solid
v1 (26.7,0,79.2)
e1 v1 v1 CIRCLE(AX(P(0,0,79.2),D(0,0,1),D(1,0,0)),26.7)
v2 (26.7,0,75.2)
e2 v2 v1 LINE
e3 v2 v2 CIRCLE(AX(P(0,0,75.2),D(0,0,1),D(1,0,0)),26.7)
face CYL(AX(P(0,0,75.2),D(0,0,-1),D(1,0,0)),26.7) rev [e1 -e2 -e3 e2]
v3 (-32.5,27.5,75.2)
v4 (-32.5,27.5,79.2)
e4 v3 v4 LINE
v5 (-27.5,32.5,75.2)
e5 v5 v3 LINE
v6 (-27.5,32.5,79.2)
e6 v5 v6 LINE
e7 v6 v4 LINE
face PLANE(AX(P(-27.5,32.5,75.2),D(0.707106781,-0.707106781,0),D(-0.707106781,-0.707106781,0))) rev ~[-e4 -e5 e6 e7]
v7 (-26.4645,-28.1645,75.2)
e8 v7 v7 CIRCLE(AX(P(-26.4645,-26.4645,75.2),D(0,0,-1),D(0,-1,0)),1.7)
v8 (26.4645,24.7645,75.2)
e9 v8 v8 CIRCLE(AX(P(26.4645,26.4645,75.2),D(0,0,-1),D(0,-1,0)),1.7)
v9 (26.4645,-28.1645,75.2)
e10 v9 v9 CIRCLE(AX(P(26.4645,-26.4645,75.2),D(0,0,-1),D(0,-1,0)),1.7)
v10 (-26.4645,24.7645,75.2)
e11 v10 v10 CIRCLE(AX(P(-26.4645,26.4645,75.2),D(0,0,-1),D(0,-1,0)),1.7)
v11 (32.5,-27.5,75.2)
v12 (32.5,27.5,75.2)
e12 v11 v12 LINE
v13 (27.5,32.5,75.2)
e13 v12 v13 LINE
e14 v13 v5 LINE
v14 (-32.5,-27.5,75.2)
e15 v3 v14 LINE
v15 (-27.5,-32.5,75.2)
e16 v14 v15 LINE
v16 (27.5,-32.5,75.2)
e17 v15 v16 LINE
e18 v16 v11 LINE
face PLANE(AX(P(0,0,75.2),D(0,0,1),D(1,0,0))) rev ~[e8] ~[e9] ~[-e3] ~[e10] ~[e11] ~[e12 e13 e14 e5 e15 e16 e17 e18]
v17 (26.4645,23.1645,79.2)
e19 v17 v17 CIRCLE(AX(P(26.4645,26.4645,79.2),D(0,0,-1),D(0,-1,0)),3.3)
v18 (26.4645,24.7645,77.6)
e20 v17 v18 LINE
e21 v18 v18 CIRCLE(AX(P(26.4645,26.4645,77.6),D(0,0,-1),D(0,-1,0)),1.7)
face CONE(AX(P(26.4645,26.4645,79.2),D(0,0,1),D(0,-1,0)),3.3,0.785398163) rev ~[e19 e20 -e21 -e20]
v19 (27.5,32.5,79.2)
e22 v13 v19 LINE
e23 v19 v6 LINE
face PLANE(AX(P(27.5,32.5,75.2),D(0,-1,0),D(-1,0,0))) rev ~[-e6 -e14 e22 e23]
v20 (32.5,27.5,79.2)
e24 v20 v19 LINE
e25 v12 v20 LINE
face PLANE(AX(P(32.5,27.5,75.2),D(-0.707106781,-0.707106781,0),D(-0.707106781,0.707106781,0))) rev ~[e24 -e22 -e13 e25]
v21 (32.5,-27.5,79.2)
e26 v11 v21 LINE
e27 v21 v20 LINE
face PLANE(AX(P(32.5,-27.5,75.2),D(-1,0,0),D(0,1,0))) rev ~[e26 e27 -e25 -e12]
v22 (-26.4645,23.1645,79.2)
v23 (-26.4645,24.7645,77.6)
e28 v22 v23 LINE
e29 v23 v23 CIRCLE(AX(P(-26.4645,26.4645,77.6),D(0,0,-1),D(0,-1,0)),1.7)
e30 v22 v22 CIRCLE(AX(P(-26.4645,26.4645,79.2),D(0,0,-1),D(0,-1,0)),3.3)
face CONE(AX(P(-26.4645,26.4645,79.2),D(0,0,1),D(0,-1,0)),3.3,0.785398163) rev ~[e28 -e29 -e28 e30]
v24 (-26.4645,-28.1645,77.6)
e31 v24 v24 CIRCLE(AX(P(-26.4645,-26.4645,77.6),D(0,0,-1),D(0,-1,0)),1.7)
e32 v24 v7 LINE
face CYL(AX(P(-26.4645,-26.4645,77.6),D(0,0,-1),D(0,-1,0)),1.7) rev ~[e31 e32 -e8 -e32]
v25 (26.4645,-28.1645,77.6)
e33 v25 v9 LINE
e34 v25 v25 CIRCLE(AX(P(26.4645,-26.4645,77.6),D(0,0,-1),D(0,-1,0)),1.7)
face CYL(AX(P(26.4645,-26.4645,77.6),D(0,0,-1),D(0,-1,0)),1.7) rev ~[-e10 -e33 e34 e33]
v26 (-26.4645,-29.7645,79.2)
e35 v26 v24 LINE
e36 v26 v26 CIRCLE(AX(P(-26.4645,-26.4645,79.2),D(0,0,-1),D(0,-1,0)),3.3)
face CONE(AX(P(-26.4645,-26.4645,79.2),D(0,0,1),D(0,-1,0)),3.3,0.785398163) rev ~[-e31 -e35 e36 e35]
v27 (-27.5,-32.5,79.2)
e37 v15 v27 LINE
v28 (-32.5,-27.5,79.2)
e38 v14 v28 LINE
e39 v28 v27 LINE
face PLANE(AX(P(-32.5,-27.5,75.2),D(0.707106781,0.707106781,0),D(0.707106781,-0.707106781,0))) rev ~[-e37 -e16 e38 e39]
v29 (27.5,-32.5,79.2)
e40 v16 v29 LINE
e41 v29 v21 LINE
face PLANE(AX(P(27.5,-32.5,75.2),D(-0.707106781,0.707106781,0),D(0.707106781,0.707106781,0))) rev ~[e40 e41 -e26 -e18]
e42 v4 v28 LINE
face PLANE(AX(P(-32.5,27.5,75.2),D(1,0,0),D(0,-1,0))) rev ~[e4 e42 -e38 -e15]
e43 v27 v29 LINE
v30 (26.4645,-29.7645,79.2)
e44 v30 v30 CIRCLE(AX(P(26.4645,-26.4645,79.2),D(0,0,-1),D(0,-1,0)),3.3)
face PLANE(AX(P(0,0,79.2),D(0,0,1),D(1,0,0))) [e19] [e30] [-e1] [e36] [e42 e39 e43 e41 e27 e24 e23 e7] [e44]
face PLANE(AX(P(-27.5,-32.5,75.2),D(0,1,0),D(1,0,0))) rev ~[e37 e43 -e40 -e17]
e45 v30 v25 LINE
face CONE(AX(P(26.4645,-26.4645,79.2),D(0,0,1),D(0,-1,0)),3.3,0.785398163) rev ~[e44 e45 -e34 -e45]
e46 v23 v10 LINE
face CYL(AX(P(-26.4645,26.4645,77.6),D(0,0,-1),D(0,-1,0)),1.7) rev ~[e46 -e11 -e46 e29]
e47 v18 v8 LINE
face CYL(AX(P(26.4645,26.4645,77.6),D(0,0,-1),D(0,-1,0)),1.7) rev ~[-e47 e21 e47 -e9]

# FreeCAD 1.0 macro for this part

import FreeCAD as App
import Part
import Sketcher

V = App.Vector
Q = App.Units.Quantity


def add_polygon(sketch, points):
    """Adds a closed chain of lines whose ends are joined by coincident constraints."""
    first, n = sketch.GeometryCount, len(points)
    for a, b in zip(points, points[1:] + points[:1]):
        sketch.addGeometry(Part.LineSegment(App.Vector(*a, 0), App.Vector(*b, 0)), False)
    for i in range(n):
        sketch.addConstraint(Sketcher.Constraint("Coincident", first + i, 2, first + (i + 1) % n, 1))

doc = App.newDocument("Part")
params = doc.addObject("Spreadsheet::Sheet", "Params")
for row, (alias, value) in enumerate([
    ("sketch1_diameter", "53.4 mm"),
    ("sketch1_width", "55 mm"),
    ("pad1_length", "4 mm"),
    ("sketch2_diameter", "3.4 mm"),
    ("hole_diameter", "3.4 mm"),
    ("hole_csink_diameter", "6.6 mm"),
], start=1):
    params.set(f"A{row}", alias)
    params.set(f"B{row}", "=" + value)
    params.setAlias(f"B{row}", alias)

body = doc.addObject("PartDesign::Body", "Body")

# Sketch on XY plane
sketch1 = body.newObject("Sketcher::SketchObject", "Sketch")
sketch1.AttachmentSupport = (doc.getObject("XY_Plane"), [""])
sketch1.MapMode = "FlatFace"
sketch1.AttachmentOffset = App.Placement(V(0, 0, 75.2), App.Rotation())
add_polygon(sketch1, [(-28, 32), (-32, 28), (-32, -28), (-28, -32), (28, -32), (32, -28), (32, 28), (28, 32)])  # lines 0-7
sketch1.addGeometry(Part.Circle(V(0, 0, 0), V(0, 0, 1), 27), False)  # 8
sketch1.addConstraint([
    Sketcher.Constraint("Vertical", 1),
    Sketcher.Constraint("Horizontal", 3),
    Sketcher.Constraint("Vertical", 5),
    Sketcher.Constraint("Horizontal", 7),
    Sketcher.Constraint("Coincident", 8, 3, -1, 1),
    Sketcher.Constraint("Symmetric", 0, 2, 4, 2, -1, 1),
    Sketcher.Constraint("Symmetric", 2, 2, 6, 2, -1, 1),
    Sketcher.Constraint("Perpendicular", 0, 2),
    Sketcher.Constraint("Perpendicular", 2, 4),
    Sketcher.Constraint("Perpendicular", 4, 6),
    Sketcher.Constraint("Horizontal", 1, 2, 4, 2),
    Sketcher.Constraint("Vertical", 3, 2, 6, 2),
    Sketcher.Constraint("Equal", 7, 1),
    Sketcher.Constraint("Diameter", 8, Q("53.4 mm")),
    Sketcher.Constraint("DistanceX", 3, 1, 3, 2, Q("55 mm")),
    Sketcher.Constraint("DistanceX", 1, 2, 2, 2, Q("5 mm")),
])
sketch1.setExpression("Constraints[21]", "Params.sketch1_diameter")
sketch1.setExpression("Constraints[22]", "Params.sketch1_width")
pad1 = body.newObject("PartDesign::Pad", "Pad")
pad1.Profile = sketch1
pad1.setExpression("Length", "Params.pad1_length")

# Sketch on XY plane
sketch2 = body.newObject("Sketcher::SketchObject", "Sketch001")
sketch2.AttachmentSupport = (doc.getObject("XY_Plane"), [""])
sketch2.MapMode = "FlatFace"
sketch2.AttachmentOffset = App.Placement(V(0, 0, 79.2), App.Rotation())
sketch2.addGeometry([
    Part.Circle(V(26.5, 26.5, 0), V(0, 0, 1), 1.7),
    Part.Circle(V(-26.5, 26.5, 0), V(0, 0, 1), 1.7),
    Part.Circle(V(26.5, -26.5, 0), V(0, 0, 1), 1.7),
    Part.Circle(V(-26.5, -26.5, 0), V(0, 0, 1), 1.7),
], False)
sketch2.addConstraint([
    Sketcher.Constraint("Equal", 0, 1),
    Sketcher.Constraint("Equal", 1, 2),
    Sketcher.Constraint("Equal", 2, 3),
    Sketcher.Constraint("Symmetric", 1, 3, 2, 3, -1, 1),
    Sketcher.Constraint("Symmetric", 0, 3, 3, 3, -1, 1),
    Sketcher.Constraint("Symmetric", 0, 3, 1, 3, -2),
    Sketcher.Constraint("Diameter", 0, Q("3.4 mm")),
    Sketcher.Constraint("DistanceX", 1, 3, 0, 3, Q("52.929 mm")),
    Sketcher.Constraint("DistanceY", 2, 3, 0, 3, Q("52.929 mm")),
])
sketch2.setExpression("Constraints[6]", "Params.sketch2_diameter")
doc.recompute()
hole = body.newObject("PartDesign::Hole", "Hole")
hole.Profile = sketch2
hole.ThreadType = "None"
hole.setExpression("Diameter", "Params.hole_diameter")
hole.DepthType = "ThroughAll"
hole.HoleCutType = "Countersink"
hole.setExpression("HoleCutDiameter", "Params.hole_csink_diameter")
hole.HoleCutCountersinkAngle = 90

doc.recompute()
